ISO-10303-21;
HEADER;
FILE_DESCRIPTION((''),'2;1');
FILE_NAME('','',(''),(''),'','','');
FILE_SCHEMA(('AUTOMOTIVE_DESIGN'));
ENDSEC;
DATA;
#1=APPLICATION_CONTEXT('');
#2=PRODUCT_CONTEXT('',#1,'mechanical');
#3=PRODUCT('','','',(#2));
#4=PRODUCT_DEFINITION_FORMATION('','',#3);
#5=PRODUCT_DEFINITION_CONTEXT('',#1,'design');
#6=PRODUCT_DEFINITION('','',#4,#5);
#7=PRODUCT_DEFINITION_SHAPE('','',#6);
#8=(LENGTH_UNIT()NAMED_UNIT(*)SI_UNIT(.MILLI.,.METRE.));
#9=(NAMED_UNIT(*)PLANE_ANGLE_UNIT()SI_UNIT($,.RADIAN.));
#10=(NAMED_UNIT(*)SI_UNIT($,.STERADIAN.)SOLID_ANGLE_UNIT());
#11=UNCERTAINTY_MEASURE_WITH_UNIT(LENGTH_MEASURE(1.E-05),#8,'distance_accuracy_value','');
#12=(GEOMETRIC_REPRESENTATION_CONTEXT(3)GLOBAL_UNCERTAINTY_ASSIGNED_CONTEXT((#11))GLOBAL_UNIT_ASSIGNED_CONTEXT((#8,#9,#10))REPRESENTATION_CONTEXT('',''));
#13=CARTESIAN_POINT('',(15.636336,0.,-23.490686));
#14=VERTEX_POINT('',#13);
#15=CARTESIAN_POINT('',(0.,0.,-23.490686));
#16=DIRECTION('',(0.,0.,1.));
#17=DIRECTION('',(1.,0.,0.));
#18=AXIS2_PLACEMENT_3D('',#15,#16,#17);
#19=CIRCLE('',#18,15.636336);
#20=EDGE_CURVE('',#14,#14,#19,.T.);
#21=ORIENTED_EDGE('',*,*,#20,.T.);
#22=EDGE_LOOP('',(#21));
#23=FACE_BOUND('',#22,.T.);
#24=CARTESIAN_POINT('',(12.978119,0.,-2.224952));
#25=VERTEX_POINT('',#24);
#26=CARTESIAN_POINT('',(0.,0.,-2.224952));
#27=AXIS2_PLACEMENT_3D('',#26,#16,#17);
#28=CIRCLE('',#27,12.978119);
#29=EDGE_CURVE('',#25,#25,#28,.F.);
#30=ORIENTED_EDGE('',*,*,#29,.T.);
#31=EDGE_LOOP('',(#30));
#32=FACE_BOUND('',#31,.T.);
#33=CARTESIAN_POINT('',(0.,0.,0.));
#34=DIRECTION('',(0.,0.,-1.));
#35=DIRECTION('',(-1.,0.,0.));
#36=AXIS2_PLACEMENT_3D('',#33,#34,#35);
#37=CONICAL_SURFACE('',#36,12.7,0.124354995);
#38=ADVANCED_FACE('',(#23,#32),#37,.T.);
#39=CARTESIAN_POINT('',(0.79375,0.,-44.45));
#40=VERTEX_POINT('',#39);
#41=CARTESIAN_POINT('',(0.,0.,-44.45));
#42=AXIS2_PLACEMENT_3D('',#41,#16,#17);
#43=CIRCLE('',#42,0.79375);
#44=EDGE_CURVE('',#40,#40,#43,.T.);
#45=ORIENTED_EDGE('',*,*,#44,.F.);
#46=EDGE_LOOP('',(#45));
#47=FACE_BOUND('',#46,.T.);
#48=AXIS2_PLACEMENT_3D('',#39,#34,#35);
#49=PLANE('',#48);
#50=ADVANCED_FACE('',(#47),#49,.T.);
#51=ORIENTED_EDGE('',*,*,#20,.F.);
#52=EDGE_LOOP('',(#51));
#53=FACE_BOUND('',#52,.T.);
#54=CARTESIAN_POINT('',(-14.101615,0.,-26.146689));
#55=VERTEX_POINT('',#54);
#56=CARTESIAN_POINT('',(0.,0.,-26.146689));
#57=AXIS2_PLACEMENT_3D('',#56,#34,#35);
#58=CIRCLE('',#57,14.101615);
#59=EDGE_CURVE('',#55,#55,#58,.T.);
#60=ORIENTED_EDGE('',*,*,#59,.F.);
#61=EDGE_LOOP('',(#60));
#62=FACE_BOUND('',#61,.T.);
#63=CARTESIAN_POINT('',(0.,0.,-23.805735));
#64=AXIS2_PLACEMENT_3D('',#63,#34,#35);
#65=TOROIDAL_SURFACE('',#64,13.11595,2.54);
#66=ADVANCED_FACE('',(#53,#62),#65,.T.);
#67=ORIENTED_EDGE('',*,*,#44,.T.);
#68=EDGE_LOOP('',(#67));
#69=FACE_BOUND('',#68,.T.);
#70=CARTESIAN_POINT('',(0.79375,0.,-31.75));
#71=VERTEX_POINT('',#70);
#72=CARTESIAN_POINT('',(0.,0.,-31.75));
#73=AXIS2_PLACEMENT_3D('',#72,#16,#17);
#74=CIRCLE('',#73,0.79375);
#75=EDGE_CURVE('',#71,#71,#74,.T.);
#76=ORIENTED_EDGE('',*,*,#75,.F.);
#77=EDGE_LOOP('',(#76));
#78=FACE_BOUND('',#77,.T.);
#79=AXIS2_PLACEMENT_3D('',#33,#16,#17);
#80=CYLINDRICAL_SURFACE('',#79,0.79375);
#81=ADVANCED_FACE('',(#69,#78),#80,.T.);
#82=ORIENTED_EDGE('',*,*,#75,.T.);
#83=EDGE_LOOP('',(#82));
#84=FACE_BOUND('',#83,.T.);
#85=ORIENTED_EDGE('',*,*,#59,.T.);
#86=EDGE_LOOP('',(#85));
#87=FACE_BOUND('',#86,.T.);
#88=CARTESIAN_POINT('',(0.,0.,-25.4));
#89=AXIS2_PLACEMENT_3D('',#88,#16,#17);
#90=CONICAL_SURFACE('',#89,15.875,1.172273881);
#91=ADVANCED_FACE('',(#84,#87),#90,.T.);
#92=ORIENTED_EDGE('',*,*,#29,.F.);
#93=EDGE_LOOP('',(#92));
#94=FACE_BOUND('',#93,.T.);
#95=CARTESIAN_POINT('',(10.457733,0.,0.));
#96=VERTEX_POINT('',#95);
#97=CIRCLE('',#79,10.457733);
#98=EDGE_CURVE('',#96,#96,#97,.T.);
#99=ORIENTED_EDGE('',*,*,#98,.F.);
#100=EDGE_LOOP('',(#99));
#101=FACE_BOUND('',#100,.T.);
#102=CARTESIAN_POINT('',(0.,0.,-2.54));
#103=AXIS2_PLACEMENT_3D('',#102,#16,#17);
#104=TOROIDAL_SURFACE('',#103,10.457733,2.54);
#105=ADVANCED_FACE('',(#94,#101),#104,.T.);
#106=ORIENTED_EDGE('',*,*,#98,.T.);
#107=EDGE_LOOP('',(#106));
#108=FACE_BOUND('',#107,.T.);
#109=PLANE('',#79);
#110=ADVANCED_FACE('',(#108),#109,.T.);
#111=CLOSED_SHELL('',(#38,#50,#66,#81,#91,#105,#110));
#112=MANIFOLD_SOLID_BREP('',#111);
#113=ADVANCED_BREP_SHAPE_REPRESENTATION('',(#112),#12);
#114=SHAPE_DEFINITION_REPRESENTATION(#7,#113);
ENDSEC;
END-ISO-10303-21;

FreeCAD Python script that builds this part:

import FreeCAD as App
import Part
import Sketcher

V = App.Vector
Q = App.Units.Quantity


def edges_at(feature, points):
    """Names of the edges that pass closest to the given points."""
    edges = feature.Shape.Edges
    near = lambda p: min(range(len(edges)), key=lambda i: edges[i].distToShape(Part.Vertex(*p))[0])
    return sorted({f"Edge{near(p) + 1}" for p in points})

doc = App.newDocument("Part")
body = doc.addObject("PartDesign::Body", "Body")

# Sketch on XZ plane
sketch1 = body.newObject("Sketcher::SketchObject", "Sketch")
sketch1.AttachmentSupport = (doc.getObject("XZ_Plane"), [""])
sketch1.MapMode = "FlatFace"
sketch1.addGeometry([
    Part.LineSegment(V(0, 0, 0), V(12.7, 0, 0)),  # 0
    Part.LineSegment(V(12.7, 0, 0), V(15.9, -25.4, 0)),  # 1
    Part.LineSegment(V(15.9, -25.4, 0), V(0.8, -31.8, 0)),  # 2
    Part.LineSegment(V(0.8, -31.8, 0), V(0.8, -44.5, 0)),  # 3
    Part.LineSegment(V(0.8, -44.5, 0), V(0, -44.5, 0)),  # 4
    Part.LineSegment(V(0, -44.5, 0), V(0, 0, 0)),  # 5
], False)
sketch1.addConstraint([
    Sketcher.Constraint("Coincident", 0, 2, 1, 1),
    Sketcher.Constraint("Coincident", 1, 2, 2, 1),
    Sketcher.Constraint("Coincident", 2, 2, 3, 1),
    Sketcher.Constraint("Coincident", 3, 2, 4, 1),
    Sketcher.Constraint("Coincident", 4, 2, 5, 1),
    Sketcher.Constraint("Coincident", 5, 2, 0, 1),
    Sketcher.Constraint("Horizontal", 0),
    Sketcher.Constraint("Vertical", 3),
    Sketcher.Constraint("Horizontal", 4),
    Sketcher.Constraint("Vertical", 5),
    Sketcher.Constraint("Coincident", 5, 2, -1, 1),
    Sketcher.Constraint("Equal", 0, 3),
    Sketcher.Constraint("DistanceX", 0, 1, 0, 2, Q("0.5 in")),
    Sketcher.Constraint("DistanceY", 1, 2, -1, 1, Q("1 in")),
    Sketcher.Constraint("DistanceY", 5, 1, 5, 2, Q("1.75 in")),
    Sketcher.Constraint("DistanceX", 4, 2, 4, 1, Q("0.03125 in")),
    Sketcher.Constraint("DistanceX", -1, 1, 1, 2, Q("0.625 in")),
])
revolution = body.newObject("PartDesign::Revolution", "Revolution")
revolution.Profile = sketch1
revolution.ReferenceAxis = (sketch1, ["V_Axis"])
revolution.Angle = 360
doc.recompute()

fillet = body.newObject("PartDesign::Fillet", "Fillet")
fillet.Base = (revolution, edges_at(revolution, [(-15.875, 0, -25.4), (-12.7, 0, 0)]))
fillet.Radius = Q("0.1 in")

doc.recompute()
